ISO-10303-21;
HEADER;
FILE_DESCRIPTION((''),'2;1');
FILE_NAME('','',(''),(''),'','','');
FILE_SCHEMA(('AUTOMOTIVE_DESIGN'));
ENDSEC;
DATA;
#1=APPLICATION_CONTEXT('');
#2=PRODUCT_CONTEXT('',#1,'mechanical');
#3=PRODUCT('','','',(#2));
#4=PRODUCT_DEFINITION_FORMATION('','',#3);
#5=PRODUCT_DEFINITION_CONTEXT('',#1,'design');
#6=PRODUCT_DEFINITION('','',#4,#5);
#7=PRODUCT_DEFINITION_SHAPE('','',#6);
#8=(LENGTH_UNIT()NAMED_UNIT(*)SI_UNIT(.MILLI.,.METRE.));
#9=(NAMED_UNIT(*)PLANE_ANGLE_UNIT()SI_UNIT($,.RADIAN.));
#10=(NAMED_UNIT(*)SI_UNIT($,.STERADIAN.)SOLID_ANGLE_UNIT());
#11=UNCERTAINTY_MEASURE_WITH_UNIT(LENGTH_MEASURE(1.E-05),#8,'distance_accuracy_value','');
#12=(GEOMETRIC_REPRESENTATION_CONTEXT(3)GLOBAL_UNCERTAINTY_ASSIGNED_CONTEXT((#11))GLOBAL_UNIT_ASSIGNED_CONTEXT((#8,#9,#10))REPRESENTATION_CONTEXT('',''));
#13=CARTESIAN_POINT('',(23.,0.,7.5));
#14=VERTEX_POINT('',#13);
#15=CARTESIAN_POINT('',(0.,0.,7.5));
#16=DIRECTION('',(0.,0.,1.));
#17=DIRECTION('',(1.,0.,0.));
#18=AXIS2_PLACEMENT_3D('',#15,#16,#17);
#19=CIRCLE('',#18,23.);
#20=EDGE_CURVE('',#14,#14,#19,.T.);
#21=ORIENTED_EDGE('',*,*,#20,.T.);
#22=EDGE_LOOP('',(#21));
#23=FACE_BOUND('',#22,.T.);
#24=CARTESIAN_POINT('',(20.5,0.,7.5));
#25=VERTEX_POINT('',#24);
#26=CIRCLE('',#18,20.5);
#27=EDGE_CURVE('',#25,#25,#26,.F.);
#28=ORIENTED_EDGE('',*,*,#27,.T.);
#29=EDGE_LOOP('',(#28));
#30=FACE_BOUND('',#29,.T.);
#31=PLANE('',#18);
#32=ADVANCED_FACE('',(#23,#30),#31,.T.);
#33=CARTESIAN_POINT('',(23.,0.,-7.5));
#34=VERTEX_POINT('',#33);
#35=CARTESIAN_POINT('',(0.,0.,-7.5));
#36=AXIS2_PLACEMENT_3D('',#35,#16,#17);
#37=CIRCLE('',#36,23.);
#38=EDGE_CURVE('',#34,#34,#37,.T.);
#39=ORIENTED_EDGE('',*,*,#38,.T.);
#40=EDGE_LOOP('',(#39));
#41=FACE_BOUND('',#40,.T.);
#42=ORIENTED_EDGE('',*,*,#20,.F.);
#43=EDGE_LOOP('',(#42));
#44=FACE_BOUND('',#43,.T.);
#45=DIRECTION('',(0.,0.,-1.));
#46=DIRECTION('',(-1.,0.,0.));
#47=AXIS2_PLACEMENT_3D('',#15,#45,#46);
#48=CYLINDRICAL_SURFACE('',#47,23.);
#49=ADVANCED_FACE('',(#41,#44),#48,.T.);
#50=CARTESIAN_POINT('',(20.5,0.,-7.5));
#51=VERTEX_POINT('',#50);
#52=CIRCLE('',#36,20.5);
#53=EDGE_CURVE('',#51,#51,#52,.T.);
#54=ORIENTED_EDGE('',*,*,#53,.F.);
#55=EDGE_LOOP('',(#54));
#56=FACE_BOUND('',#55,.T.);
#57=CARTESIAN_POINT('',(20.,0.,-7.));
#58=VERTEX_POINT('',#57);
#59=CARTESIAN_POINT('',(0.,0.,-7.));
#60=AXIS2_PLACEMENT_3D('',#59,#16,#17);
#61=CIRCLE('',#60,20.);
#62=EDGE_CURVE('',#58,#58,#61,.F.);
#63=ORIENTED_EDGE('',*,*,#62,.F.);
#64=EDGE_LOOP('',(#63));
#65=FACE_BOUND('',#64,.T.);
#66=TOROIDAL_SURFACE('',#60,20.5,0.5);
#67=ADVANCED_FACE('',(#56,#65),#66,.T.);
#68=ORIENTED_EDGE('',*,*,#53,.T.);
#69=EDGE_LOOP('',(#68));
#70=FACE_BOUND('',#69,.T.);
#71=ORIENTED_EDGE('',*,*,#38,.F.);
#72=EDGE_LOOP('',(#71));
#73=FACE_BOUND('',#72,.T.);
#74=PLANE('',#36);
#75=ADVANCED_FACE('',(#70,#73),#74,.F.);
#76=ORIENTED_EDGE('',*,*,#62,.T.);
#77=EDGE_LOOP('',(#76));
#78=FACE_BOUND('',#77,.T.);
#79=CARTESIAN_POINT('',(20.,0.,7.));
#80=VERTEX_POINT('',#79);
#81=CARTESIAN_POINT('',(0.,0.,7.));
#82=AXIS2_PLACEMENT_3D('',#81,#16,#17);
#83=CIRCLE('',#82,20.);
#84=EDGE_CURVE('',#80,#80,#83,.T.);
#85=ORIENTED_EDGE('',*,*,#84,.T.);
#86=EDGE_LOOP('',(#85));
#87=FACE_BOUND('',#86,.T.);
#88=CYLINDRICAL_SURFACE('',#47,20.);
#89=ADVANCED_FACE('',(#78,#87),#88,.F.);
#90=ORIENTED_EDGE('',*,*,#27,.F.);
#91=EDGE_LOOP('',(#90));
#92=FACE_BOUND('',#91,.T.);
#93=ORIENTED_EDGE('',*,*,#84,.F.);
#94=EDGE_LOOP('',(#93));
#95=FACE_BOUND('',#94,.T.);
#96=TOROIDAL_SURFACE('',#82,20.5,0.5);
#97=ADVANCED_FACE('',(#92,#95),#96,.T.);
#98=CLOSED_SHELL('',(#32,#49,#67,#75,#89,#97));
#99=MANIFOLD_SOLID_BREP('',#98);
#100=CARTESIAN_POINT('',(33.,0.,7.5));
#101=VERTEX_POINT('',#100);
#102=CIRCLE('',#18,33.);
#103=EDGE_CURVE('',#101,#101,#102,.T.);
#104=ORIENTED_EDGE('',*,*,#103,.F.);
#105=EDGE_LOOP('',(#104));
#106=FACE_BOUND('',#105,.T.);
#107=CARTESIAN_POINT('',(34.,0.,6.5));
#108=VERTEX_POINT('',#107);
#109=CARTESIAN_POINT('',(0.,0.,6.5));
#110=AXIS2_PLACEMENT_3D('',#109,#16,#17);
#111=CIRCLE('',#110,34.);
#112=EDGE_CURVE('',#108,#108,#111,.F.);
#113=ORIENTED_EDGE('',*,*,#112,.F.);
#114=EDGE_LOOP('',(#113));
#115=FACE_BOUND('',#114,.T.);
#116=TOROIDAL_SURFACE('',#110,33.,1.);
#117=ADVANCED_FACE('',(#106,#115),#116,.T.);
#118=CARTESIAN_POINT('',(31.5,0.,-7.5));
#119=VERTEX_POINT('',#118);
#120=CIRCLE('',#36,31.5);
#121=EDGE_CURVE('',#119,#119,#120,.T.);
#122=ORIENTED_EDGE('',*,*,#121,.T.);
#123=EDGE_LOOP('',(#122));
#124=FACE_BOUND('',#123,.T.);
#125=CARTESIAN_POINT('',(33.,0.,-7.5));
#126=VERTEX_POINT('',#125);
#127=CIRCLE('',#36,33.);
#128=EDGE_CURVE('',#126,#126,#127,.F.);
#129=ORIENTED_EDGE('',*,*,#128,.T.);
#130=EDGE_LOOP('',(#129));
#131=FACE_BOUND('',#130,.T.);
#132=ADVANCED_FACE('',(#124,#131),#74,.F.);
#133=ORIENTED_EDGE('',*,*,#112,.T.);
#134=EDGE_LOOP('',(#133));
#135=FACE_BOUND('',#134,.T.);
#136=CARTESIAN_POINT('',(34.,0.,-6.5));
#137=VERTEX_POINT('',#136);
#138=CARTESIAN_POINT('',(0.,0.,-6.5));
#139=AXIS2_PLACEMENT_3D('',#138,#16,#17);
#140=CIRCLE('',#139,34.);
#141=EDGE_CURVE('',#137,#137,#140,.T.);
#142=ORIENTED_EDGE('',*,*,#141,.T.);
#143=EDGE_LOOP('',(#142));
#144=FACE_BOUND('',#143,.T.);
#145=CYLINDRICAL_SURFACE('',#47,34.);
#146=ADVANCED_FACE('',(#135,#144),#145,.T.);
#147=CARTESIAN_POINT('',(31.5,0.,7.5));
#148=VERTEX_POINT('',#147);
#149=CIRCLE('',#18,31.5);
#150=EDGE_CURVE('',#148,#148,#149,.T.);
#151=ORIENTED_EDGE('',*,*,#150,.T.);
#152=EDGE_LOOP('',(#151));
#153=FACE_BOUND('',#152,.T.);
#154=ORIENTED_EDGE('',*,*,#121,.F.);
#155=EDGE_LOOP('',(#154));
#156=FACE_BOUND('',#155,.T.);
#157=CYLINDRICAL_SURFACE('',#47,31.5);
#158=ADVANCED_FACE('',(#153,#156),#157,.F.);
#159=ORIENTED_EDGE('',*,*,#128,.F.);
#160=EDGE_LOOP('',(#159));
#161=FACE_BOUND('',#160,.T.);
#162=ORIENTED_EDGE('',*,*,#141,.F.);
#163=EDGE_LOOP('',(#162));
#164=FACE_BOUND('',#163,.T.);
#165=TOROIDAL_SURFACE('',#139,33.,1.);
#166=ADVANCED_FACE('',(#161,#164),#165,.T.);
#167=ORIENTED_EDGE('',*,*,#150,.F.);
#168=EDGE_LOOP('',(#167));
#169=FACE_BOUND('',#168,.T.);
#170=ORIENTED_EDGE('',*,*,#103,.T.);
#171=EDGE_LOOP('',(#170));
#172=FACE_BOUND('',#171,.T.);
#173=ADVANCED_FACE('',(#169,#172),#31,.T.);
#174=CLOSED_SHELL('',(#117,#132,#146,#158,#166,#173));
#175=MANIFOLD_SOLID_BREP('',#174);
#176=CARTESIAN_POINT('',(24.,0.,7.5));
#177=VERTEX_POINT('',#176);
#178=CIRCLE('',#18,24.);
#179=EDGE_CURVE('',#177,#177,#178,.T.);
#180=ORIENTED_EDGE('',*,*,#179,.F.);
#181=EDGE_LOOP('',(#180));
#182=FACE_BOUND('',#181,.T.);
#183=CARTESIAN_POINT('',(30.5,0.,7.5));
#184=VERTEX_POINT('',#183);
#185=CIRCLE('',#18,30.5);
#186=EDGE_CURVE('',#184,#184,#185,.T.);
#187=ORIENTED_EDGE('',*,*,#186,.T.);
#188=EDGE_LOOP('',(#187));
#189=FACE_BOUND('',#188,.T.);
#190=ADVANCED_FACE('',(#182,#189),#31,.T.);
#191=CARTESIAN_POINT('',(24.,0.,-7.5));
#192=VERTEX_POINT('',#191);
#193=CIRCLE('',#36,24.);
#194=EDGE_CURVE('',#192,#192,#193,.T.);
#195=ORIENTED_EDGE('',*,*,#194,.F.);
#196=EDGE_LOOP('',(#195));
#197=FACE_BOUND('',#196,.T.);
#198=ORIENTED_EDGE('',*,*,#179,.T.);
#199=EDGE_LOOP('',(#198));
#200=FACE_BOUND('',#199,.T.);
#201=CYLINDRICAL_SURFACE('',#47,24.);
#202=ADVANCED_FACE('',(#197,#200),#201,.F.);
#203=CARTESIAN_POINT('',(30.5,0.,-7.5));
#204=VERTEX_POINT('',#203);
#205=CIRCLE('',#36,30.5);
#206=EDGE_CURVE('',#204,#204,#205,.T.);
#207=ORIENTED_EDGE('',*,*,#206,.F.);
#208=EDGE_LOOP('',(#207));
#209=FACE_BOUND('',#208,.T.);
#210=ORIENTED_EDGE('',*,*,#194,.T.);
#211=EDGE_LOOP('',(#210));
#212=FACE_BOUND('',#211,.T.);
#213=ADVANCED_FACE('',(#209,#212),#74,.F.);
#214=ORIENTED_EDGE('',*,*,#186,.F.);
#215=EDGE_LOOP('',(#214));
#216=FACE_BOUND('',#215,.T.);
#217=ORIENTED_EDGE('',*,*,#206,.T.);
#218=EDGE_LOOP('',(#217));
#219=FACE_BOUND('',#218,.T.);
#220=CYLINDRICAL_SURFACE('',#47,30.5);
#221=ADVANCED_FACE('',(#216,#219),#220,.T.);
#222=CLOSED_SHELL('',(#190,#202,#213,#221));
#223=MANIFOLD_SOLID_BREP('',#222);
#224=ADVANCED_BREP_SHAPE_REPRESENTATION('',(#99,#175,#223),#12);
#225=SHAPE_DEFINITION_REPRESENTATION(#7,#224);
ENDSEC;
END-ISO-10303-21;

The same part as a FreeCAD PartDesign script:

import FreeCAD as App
import Part
import Sketcher
from FreeCAD import Vector
Q = App.Units.Quantity


def edges_at(feature, points):
    """Names of the edges that pass closest to the given points."""
    edges = feature.Shape.Edges
    near = lambda p: min(range(len(edges)), key=lambda i: edges[i].distToShape(Part.Vertex(*p))[0])
    return sorted({f"Edge{near(p) + 1}" for p in points})

doc = App.newDocument("Part")
body = doc.addObject("PartDesign::Body", "Body")

# Sketch on XY plane
sketch1 = doc.addObject("Sketcher::SketchObject", "Sketch")
body.addObject(sketch1)
sketch1.AttachmentSupport = (doc.XY_Plane, [""])
sketch1.MapMode = "FlatFace"
sketch1.addGeometry(Part.Circle(Vector(0, 0, 0), Vector(0, 0, 1), 23), False)
sketch1.addGeometry(Part.Circle(Vector(0, 0, 0), Vector(0, 0, 1), 20), False)
sketch1.addConstraint(Sketcher.Constraint("Coincident", 0, 3, -1, 1))
sketch1.addConstraint(Sketcher.Constraint("Coincident", 1, 3, -1, 1))
sketch1.addConstraint(Sketcher.Constraint("Diameter", 0, Q("46 mm")))
sketch1.addConstraint(Sketcher.Constraint("Diameter", 1, Q("40 mm")))
pad1 = doc.addObject("PartDesign::Pad", "Pad")
body.addObject(pad1)
pad1.Profile = sketch1
pad1.Length = 15
pad1.Midplane = True
doc.recompute()

fillet = doc.addObject("PartDesign::Fillet", "Fillet")
body.addObject(fillet)
fillet.Base = (pad1, edges_at(pad1, [(-20, 0, -7.5), (-20, 0, 7.5)]))
fillet.Radius = 0.5
body2 = doc.addObject("PartDesign::Body", "Body001")

# Sketch on XY plane
sketch2 = doc.addObject("Sketcher::SketchObject", "Sketch001")
body2.addObject(sketch2)
sketch2.AttachmentSupport = (doc.getObject("XY_Plane001"), [""])
sketch2.MapMode = "FlatFace"
sketch2.addGeometry(Part.Circle(Vector(0, 0, 0), Vector(0, 0, 1), 30.5), False)
sketch2.addGeometry(Part.Circle(Vector(0, 0, 0), Vector(0, 0, 1), 24), False)
sketch2.addConstraint(Sketcher.Constraint("Coincident", 0, 3, -1, 1))
sketch2.addConstraint(Sketcher.Constraint("Coincident", 1, 3, -1, 1))
sketch2.addConstraint(Sketcher.Constraint("Diameter", 0, Q("61 mm")))
sketch2.addConstraint(Sketcher.Constraint("Diameter", 1, Q("48 mm")))
pad2 = doc.addObject("PartDesign::Pad", "Pad001")
body2.addObject(pad2)
pad2.Profile = sketch2
pad2.Length = 15
pad2.Midplane = True
body3 = doc.addObject("PartDesign::Body", "Body002")

# Sketch on XY plane
sketch3 = doc.addObject("Sketcher::SketchObject", "Sketch002")
body3.addObject(sketch3)
sketch3.AttachmentSupport = (doc.getObject("XY_Plane002"), [""])
sketch3.MapMode = "FlatFace"
sketch3.addGeometry(Part.Circle(Vector(0, 0, 0), Vector(0, 0, 1), 34), False)
sketch3.addGeometry(Part.Circle(Vector(0, 0, 0), Vector(0, 0, 1), 31.5), False)
sketch3.addConstraint(Sketcher.Constraint("Coincident", 0, 3, -1, 1))
sketch3.addConstraint(Sketcher.Constraint("Coincident", 1, 3, -1, 1))
sketch3.addConstraint(Sketcher.Constraint("Diameter", 0, Q("68 mm")))
sketch3.addConstraint(Sketcher.Constraint("Diameter", 1, Q("63 mm")))
pad3 = doc.addObject("PartDesign::Pad", "Pad002")
body3.addObject(pad3)
pad3.Profile = sketch3
pad3.Length = 15
pad3.Midplane = True
doc.recompute()

fillet2 = doc.addObject("PartDesign::Fillet", "Fillet001")
body3.addObject(fillet2)
fillet2.Base = (pad3, edges_at(pad3, [(-34, 0, -7.5), (-34, 0, 7.5)]))
fillet2.Radius = 1

doc.recompute()
